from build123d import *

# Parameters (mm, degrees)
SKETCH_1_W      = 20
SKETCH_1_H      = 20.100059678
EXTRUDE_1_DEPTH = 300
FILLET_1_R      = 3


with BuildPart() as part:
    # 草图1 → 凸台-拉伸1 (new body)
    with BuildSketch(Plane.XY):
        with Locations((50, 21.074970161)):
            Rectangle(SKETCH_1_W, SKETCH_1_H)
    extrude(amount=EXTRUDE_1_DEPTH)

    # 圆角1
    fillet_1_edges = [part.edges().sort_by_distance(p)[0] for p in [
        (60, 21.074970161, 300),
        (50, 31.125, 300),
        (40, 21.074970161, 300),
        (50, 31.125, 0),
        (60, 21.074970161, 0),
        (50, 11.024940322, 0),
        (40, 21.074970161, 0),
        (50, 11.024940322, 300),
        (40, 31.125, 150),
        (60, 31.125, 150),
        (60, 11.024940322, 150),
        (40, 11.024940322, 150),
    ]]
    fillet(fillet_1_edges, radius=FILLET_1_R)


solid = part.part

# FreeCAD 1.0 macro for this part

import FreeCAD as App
import Part
import Sketcher

doc = App.newDocument("Part")
body = doc.addObject("PartDesign::Body", "Body")

# Sketch on XY plane
sketch1 = body.newObject("Sketcher::SketchObject", "Sketch")
sketch1.AttachmentSupport = (doc.getObject("XY_Plane"), [""])
sketch1.MapMode = "FlatFace"
sketch1.addGeometry([
    Part.LineSegment(App.Vector(40, 31.125, 0), App.Vector(40, 11.02494, 0)),
    Part.LineSegment(App.Vector(40, 11.02494, 0), App.Vector(60, 11.02494, 0)),
    Part.LineSegment(App.Vector(60, 11.02494, 0), App.Vector(60, 31.125, 0)),
    Part.LineSegment(App.Vector(60, 31.125, 0), App.Vector(40, 31.125, 0)),
], False)
sketch1.addConstraint([
    Sketcher.Constraint("Coincident", 0, 2, 1, 1),
    Sketcher.Constraint("Coincident", 1, 2, 2, 1),
    Sketcher.Constraint("Coincident", 2, 2, 3, 1),
    Sketcher.Constraint("Coincident", 3, 2, 0, 1),
    Sketcher.Constraint("Vertical", 0),
    Sketcher.Constraint("Horizontal", 1),
    Sketcher.Constraint("Vertical", 2),
    Sketcher.Constraint("Horizontal", 3),
    Sketcher.Constraint("DistanceX", 1, 1, 1, 2, 20.0),
    Sketcher.Constraint("DistanceX", -1, 1, 0, 2, 40.0),
    Sketcher.Constraint("DistanceY", -1, 1, 2, 2, 31.125),
    Sketcher.Constraint("DistanceY", 0, 2, 0, 1, 20.10006),
])
pad1 = body.newObject("PartDesign::Pad", "Pad")
pad1.Profile = sketch1
pad1.Length = 300
doc.recompute()

fillet = body.newObject("PartDesign::Fillet", "Fillet")
fillet.Base = (pad1, ["Edge1"])
fillet.UseAllEdges = True
fillet.Radius = 3

doc.recompute()
